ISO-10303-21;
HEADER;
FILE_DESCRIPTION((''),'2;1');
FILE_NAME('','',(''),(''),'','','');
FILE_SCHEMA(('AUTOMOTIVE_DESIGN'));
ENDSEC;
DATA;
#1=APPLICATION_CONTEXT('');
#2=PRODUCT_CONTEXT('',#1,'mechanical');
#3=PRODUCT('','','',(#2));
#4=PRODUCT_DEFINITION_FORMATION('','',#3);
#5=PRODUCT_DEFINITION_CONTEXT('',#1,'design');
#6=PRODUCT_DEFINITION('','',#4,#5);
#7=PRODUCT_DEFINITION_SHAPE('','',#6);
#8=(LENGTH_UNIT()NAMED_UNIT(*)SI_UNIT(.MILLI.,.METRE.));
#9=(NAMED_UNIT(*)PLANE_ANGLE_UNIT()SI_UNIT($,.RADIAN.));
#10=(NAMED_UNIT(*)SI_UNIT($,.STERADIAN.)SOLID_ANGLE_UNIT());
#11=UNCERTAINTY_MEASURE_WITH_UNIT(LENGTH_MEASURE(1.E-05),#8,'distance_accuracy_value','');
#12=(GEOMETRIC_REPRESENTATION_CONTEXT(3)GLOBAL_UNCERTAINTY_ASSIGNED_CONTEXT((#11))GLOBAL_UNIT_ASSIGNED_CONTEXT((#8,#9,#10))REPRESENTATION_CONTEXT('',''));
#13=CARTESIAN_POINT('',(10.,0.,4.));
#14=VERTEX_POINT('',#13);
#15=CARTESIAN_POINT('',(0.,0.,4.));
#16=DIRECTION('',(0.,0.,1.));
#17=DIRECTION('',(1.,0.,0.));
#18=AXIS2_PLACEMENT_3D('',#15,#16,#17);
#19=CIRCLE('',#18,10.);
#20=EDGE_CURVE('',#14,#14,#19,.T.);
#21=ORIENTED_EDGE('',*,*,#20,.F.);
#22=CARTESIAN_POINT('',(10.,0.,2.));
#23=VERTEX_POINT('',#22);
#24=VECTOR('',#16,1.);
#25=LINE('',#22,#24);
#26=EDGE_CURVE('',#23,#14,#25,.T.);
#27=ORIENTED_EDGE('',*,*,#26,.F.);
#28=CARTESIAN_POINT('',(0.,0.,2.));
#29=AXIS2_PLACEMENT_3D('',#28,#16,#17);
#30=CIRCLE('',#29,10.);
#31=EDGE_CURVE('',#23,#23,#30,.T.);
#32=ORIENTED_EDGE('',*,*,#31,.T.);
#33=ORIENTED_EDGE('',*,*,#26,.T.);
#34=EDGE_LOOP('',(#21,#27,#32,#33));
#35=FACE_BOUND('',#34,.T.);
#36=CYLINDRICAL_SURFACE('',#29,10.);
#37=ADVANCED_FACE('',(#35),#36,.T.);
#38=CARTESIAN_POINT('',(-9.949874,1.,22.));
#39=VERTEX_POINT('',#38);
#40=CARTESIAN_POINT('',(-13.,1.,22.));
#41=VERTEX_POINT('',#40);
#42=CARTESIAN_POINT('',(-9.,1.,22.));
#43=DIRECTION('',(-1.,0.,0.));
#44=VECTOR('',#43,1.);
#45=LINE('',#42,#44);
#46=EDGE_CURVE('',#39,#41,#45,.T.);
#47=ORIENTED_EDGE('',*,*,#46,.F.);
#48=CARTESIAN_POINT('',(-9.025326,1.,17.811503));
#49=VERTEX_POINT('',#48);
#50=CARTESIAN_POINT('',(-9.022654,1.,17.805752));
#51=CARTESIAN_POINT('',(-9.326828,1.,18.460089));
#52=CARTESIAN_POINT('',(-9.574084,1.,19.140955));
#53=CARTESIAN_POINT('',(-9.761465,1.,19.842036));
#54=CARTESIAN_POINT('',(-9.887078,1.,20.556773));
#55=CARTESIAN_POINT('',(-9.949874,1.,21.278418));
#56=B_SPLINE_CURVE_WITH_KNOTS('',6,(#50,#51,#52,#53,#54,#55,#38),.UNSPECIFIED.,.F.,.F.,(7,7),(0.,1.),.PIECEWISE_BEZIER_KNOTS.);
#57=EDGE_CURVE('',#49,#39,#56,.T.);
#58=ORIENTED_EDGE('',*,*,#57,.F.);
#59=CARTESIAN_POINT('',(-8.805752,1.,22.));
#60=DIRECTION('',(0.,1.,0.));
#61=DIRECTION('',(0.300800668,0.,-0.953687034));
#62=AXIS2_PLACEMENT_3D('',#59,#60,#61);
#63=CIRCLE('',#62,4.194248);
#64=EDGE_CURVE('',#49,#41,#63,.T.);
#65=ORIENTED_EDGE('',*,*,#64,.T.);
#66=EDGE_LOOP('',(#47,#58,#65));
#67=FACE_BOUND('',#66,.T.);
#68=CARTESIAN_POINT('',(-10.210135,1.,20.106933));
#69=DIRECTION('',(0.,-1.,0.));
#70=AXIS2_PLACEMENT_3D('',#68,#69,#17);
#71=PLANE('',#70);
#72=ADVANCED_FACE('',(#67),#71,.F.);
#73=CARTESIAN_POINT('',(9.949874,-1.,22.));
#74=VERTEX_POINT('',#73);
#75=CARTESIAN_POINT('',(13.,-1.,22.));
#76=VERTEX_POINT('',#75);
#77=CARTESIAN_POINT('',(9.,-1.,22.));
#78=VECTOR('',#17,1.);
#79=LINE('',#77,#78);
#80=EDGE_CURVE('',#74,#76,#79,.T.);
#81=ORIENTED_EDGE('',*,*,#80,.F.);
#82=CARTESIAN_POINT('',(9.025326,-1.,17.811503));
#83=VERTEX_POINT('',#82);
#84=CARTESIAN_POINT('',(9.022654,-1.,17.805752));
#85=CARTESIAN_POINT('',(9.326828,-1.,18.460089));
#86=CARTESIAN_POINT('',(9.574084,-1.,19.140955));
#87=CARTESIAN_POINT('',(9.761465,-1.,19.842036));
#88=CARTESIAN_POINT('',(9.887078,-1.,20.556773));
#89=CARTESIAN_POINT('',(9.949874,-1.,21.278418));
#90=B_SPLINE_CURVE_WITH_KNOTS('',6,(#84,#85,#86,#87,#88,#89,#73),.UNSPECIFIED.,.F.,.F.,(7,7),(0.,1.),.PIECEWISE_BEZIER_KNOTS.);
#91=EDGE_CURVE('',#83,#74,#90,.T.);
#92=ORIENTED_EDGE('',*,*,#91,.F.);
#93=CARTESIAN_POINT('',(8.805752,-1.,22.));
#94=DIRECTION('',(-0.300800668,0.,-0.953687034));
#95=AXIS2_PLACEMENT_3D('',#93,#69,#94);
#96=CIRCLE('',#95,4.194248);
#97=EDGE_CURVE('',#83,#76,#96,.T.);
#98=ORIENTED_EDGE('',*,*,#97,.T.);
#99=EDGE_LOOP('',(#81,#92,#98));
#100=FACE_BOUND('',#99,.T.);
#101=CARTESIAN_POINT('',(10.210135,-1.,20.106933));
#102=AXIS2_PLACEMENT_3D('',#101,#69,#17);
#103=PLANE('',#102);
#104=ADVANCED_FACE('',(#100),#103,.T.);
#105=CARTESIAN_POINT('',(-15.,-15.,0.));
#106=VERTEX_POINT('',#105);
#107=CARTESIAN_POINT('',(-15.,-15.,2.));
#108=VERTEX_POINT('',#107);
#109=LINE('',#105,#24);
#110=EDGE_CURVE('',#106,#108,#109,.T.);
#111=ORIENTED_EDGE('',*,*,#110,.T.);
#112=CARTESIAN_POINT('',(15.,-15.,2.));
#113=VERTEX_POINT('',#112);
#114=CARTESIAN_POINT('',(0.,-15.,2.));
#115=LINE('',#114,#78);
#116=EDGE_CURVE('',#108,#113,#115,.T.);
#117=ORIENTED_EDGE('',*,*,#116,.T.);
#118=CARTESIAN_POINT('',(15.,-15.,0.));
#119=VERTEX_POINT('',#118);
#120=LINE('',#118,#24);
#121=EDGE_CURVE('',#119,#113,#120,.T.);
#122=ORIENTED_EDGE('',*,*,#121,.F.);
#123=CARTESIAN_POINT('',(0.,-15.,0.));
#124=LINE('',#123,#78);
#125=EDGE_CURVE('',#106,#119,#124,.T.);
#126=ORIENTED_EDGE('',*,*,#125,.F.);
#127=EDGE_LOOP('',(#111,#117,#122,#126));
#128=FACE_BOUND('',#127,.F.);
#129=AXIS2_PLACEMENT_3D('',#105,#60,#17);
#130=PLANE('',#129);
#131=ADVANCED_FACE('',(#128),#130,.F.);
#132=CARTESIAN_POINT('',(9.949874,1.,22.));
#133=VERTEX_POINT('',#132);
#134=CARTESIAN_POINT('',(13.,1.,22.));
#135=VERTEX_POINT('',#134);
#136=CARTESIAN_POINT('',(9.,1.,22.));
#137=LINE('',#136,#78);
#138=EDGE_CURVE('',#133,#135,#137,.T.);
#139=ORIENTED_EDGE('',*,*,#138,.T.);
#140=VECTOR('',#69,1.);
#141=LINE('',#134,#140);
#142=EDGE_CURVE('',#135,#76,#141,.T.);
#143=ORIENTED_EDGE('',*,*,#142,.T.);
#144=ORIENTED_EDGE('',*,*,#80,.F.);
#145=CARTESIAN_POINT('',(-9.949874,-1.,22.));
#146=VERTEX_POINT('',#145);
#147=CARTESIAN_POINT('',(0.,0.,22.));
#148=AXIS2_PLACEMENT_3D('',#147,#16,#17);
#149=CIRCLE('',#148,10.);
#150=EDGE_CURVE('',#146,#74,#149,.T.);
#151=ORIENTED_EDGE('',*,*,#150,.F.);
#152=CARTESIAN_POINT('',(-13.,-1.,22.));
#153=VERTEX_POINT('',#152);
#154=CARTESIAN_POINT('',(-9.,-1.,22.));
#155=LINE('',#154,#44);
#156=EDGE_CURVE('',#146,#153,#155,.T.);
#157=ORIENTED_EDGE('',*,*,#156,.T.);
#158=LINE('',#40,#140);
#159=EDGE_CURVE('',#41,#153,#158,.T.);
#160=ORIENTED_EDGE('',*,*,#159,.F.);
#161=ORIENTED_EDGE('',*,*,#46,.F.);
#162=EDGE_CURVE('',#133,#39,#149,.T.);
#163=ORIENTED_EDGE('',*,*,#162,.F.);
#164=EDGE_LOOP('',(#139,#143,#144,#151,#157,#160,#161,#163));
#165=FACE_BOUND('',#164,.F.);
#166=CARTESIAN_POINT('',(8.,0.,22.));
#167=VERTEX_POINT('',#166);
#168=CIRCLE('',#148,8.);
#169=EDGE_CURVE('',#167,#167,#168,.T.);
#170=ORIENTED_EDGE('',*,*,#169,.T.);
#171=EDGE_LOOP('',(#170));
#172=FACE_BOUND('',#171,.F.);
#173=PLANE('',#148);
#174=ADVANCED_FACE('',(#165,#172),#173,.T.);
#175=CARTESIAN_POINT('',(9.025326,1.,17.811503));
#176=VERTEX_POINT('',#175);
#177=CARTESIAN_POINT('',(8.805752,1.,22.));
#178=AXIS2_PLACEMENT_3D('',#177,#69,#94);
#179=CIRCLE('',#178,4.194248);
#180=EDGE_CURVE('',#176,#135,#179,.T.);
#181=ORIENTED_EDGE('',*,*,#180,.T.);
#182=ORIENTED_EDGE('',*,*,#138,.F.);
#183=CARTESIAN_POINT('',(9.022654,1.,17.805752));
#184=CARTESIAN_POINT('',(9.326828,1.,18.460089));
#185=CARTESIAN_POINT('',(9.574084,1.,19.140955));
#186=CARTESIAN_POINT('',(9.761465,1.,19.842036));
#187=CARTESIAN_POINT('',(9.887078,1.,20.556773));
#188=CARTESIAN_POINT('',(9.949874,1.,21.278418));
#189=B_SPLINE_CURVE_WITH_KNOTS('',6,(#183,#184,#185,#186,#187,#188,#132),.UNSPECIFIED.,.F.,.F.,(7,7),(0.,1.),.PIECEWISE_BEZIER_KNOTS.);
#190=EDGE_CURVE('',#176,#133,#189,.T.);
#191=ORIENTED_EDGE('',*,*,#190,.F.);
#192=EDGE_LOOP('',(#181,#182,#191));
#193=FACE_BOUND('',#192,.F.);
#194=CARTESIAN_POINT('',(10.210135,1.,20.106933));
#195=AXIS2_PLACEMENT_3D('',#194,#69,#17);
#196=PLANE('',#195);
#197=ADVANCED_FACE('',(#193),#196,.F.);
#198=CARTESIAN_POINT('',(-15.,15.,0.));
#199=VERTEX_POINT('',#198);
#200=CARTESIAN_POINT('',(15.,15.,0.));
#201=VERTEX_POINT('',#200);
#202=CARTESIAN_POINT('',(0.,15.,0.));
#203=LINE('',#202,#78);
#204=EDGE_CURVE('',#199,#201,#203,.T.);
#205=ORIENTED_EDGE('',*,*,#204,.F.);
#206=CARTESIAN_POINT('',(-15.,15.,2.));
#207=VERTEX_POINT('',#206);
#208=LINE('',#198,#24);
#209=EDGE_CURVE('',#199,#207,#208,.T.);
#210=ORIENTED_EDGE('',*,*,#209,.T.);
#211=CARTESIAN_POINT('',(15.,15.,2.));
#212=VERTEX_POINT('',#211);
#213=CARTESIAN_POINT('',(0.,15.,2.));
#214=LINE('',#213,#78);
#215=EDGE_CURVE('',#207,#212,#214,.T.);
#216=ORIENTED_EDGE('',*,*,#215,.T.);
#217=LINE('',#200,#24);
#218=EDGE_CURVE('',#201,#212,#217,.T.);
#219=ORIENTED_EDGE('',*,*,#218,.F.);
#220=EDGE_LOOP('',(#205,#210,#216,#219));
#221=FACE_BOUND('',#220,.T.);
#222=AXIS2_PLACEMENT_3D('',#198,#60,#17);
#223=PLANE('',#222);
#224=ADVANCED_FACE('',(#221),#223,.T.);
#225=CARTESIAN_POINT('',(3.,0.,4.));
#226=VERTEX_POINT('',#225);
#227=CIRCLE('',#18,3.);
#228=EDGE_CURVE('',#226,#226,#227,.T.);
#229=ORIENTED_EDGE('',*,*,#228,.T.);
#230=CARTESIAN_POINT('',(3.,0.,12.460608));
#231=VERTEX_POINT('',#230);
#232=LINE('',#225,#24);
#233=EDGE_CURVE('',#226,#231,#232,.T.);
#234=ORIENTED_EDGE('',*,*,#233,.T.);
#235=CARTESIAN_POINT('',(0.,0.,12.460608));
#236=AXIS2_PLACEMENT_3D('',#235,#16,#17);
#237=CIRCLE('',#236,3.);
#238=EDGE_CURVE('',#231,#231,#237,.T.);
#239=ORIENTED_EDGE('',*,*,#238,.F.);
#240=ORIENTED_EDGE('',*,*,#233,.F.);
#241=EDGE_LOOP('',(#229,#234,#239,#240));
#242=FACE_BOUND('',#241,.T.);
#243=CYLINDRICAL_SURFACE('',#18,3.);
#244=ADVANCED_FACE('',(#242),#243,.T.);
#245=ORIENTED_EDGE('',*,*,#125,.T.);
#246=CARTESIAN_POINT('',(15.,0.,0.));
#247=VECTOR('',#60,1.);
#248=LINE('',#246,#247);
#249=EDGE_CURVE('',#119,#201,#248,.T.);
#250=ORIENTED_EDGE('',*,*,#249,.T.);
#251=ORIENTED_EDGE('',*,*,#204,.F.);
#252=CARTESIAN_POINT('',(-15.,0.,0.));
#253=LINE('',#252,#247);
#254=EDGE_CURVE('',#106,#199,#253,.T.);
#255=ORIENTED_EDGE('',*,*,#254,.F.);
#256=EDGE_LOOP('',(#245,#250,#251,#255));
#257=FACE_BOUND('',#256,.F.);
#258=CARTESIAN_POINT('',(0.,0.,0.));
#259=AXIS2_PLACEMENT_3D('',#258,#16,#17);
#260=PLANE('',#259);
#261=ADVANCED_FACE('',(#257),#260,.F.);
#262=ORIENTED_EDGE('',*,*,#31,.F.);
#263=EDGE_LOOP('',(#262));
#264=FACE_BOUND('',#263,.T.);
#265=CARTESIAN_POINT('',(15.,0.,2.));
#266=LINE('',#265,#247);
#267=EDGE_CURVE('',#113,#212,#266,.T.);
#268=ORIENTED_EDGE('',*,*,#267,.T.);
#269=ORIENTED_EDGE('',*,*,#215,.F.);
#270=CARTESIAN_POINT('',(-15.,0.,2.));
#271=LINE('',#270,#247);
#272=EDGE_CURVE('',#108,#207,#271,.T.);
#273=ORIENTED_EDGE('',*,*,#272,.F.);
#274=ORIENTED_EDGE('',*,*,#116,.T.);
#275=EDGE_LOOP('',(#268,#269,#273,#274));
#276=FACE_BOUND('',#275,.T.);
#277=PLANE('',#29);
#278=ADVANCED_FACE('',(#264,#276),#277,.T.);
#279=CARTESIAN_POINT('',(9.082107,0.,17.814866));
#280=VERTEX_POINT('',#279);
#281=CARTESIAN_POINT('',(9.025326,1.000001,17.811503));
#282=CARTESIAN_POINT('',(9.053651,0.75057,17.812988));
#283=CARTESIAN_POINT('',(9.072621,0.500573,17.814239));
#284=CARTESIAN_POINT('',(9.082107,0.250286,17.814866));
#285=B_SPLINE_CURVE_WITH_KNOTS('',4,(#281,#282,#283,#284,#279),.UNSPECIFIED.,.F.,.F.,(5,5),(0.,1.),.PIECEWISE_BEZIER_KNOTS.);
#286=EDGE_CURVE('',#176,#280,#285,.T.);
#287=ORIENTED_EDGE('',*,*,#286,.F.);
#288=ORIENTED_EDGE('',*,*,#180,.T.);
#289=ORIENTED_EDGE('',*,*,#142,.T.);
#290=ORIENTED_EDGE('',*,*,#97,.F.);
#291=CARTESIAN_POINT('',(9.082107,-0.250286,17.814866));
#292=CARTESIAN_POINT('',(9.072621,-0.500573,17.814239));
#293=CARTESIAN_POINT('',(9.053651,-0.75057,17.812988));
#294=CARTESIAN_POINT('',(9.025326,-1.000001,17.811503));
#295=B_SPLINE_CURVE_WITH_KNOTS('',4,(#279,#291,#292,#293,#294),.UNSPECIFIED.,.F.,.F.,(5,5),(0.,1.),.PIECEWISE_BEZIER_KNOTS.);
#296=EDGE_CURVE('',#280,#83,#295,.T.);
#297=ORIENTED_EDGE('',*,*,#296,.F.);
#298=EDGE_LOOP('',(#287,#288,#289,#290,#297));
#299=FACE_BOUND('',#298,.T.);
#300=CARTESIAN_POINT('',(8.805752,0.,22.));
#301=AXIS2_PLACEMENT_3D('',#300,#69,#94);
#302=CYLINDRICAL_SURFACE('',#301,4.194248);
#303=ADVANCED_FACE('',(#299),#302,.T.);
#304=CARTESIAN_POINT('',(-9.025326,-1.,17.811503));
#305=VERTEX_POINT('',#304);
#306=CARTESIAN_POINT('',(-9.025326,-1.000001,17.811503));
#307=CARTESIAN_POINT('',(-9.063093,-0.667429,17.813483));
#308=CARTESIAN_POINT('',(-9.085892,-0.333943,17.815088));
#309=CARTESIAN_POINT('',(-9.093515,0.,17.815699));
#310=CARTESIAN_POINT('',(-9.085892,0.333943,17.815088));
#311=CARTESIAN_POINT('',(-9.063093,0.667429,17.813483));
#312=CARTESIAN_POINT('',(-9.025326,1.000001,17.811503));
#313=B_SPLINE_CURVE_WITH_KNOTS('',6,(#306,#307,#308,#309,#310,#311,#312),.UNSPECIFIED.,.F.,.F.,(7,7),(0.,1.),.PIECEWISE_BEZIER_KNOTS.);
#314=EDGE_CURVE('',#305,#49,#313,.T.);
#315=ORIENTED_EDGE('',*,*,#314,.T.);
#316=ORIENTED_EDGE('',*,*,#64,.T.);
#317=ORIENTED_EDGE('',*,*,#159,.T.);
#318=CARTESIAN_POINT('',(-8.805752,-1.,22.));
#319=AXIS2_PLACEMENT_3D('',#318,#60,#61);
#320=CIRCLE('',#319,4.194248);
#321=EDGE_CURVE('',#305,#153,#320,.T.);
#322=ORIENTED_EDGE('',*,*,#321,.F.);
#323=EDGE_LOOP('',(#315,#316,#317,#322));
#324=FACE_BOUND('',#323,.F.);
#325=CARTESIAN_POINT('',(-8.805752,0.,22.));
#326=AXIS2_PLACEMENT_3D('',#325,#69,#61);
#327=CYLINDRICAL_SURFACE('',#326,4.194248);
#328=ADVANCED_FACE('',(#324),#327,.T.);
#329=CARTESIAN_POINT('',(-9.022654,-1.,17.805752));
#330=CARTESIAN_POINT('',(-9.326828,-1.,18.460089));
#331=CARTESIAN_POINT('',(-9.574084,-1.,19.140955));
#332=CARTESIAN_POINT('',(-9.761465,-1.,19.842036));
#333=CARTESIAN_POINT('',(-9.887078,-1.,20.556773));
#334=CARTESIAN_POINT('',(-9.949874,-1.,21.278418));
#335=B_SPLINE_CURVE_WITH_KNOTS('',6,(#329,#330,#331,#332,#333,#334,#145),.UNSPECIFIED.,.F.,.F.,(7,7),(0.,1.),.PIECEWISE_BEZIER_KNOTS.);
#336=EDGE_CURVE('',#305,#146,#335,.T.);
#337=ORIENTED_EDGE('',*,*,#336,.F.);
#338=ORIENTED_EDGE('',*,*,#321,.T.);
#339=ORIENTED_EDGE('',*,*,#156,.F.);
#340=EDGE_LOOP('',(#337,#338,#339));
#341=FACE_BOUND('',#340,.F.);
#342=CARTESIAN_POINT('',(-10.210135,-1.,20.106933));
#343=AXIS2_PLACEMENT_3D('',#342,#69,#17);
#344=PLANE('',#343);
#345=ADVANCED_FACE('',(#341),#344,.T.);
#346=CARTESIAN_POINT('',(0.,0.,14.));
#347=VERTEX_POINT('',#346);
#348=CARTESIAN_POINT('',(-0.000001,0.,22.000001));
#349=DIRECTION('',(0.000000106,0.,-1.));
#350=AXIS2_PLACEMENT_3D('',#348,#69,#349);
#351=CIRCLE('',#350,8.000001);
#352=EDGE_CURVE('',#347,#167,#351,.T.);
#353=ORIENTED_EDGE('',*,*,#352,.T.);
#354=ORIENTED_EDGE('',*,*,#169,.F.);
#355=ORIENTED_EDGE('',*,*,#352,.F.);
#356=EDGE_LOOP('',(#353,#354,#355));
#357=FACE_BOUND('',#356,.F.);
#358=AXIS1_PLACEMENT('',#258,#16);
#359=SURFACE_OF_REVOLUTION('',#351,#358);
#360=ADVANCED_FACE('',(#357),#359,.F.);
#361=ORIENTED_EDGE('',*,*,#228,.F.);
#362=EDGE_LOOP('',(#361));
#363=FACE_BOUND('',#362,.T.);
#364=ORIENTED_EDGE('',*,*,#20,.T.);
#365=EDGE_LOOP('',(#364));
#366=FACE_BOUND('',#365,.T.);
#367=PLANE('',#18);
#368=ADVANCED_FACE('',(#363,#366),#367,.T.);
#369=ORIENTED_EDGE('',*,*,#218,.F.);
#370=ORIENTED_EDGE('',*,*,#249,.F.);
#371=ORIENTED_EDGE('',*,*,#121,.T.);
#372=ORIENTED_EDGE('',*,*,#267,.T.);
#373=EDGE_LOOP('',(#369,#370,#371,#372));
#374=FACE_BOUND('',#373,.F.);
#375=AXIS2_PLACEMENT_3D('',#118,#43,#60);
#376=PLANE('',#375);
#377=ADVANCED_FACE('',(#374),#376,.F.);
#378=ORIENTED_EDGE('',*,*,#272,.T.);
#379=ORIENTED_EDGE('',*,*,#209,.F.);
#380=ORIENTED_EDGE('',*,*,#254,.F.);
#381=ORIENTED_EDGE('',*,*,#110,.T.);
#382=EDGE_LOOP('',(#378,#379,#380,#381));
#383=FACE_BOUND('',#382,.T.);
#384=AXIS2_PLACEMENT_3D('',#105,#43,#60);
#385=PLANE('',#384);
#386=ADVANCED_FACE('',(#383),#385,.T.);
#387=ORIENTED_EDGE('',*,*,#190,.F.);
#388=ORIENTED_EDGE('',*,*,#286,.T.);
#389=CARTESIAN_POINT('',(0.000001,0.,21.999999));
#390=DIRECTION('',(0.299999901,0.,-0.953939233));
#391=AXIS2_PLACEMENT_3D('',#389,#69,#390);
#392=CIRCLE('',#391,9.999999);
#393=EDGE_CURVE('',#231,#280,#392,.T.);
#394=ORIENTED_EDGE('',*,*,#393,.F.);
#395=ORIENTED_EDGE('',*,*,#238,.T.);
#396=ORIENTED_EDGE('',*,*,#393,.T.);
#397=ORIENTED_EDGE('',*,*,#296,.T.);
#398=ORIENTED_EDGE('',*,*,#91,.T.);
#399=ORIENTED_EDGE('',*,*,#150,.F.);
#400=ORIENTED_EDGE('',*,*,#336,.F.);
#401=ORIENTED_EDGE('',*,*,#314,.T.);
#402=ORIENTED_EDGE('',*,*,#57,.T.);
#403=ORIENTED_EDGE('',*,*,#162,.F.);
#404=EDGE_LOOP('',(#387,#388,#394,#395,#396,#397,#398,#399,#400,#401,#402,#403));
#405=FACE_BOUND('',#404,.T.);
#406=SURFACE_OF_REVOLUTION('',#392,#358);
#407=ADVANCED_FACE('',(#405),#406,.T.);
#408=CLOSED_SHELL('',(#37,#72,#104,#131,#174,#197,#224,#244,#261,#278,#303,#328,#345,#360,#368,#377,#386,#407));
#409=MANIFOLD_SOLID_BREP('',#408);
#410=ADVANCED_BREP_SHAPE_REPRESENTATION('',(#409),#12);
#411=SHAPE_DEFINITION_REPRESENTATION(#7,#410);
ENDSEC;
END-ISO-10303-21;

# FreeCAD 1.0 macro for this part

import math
import FreeCAD as App
import Part
import Sketcher
Q = App.Units.Quantity

doc = App.newDocument("Part")
body = doc.addObject("PartDesign::Body", "Body")

sketch1 = body.newObject("Sketcher::SketchObject", "Sketch")
sketch1.AttachmentSupport = (doc.getObject("XY_Plane"), [""])
sketch1.MapMode = "FlatFace"
sketch1.addGeometry([
    Part.LineSegment(App.Vector(-15, 15, 0), App.Vector(-15, -15, 0)),
    Part.LineSegment(App.Vector(-15, -15, 0), App.Vector(15, -15, 0)),
    Part.LineSegment(App.Vector(15, -15, 0), App.Vector(15, 15, 0)),
    Part.LineSegment(App.Vector(15, 15, 0), App.Vector(-15, 15, 0)),
], False)
sketch1.addConstraint([
    Sketcher.Constraint("Coincident", 0, 2, 1, 1),
    Sketcher.Constraint("Coincident", 1, 2, 2, 1),
    Sketcher.Constraint("Coincident", 2, 2, 3, 1),
    Sketcher.Constraint("Coincident", 3, 2, 0, 1),
    Sketcher.Constraint("Vertical", 0),
    Sketcher.Constraint("Horizontal", 1),
    Sketcher.Constraint("Vertical", 2),
    Sketcher.Constraint("Horizontal", 3),
    Sketcher.Constraint("Symmetric", 0, 2, 2, 2, -1, 1),
    Sketcher.Constraint("Equal", 3, 0),
    Sketcher.Constraint("DistanceX", 1, 1, 1, 2, Q("30 mm")),
])
pad1 = body.newObject("PartDesign::Pad", "Pad")
pad1.Profile = sketch1
pad1.Length = 2

sketch2 = body.newObject("Sketcher::SketchObject", "Sketch001")
sketch2.AttachmentSupport = (doc.getObject("XZ_Plane"), [""])
sketch2.MapMode = "FlatFace"
sketch2.addGeometry([
    Part.LineSegment(App.Vector(0, 2, 0), App.Vector(10, 2, 0)),
    Part.LineSegment(App.Vector(10, 2, 0), App.Vector(10, 4, 0)),
    Part.LineSegment(App.Vector(10, 4, 0), App.Vector(3, 4, 0)),
    Part.LineSegment(App.Vector(3, 4, 0), App.Vector(3, 12.460608, 0)),
    Part.ArcOfCircle(Part.Circle(App.Vector(0.000001, 21.999999, 0), App.Vector(0, 0, 1), 9.999999), math.radians(-72.542403), math.radians(0.000006)),
    Part.LineSegment(App.Vector(10, 22, 0), App.Vector(8, 22, 0)),
    Part.ArcOfCircle(Part.Circle(App.Vector(-0.000001, 22.000001, 0), App.Vector(0, 0, 1), 8.000001), math.radians(-89.999994), math.radians(-0.000006)),
    Part.LineSegment(App.Vector(0, 14, 0), App.Vector(0, 2, 0)),
], False)
sketch2.addConstraint([
    Sketcher.Constraint("Coincident", 0, 2, 1, 1),
    Sketcher.Constraint("Coincident", 1, 2, 2, 1),
    Sketcher.Constraint("Coincident", 2, 2, 3, 1),
    Sketcher.Constraint("Coincident", 3, 2, 4, 1),
    Sketcher.Constraint("Coincident", 4, 2, 5, 1),
    Sketcher.Constraint("Coincident", 5, 2, 6, 2),
    Sketcher.Constraint("Coincident", 6, 1, 7, 1),
    Sketcher.Constraint("Coincident", 7, 2, 0, 1),
    Sketcher.Constraint("Horizontal", 0),
    Sketcher.Constraint("Vertical", 1),
    Sketcher.Constraint("Horizontal", 2),
    Sketcher.Constraint("Vertical", 3),
    Sketcher.Constraint("Horizontal", 5),
    Sketcher.Constraint("Vertical", 7),
    Sketcher.Constraint("Coincident", 6, 3, 4, 3),
    Sketcher.Constraint("PointOnObject", 4, 3, -2),
    Sketcher.Constraint("PointOnObject", 6, 1, -2),
    Sketcher.Constraint("Horizontal", 6, 3, 4, 2),
    Sketcher.Constraint("Vertical", 1, 2, 4, 2),
    Sketcher.Constraint("Equal", 5, 1),
    Sketcher.Constraint("Radius", 4, Q("9.999999 mm")),
    Sketcher.Constraint("Radius", 6, Q("8.000001 mm")),
    Sketcher.Constraint("DistanceX", 2, 2, 2, 1, Q("7 mm")),
    Sketcher.Constraint("DistanceY", 7, 2, 7, 1, Q("12 mm")),
    Sketcher.Constraint("DistanceY", -1, 1, 4, 3, Q("21.999999 mm")),
])
revolution = body.newObject("PartDesign::Revolution", "Revolution")
revolution.Profile = sketch2
revolution.ReferenceAxis = (sketch2, ["V_Axis"])
revolution.Angle = 360

sketch3 = body.newObject("Sketcher::SketchObject", "Sketch002")
sketch3.AttachmentSupport = (doc.getObject("XZ_Plane"), [""])
sketch3.MapMode = "FlatFace"
sketch3.addGeometry([
    Part.ArcOfCircle(Part.Circle(App.Vector(8.805752, 22, 0), App.Vector(0, 0, 1), 4.194248), math.radians(-107.505699), math.radians(-0.000003)),
    Part.LineSegment(App.Vector(13, 22, 0), App.Vector(9, 22, 0)),
    Part.LineSegment(App.Vector(9, 22, 0), App.Vector(7.544119, 18, 0)),
], False)
sketch3.addConstraint([
    Sketcher.Constraint("Coincident", 0, 2, 1, 1),
    Sketcher.Constraint("Coincident", 1, 2, 2, 1),
    Sketcher.Constraint("Coincident", 2, 2, 0, 1),
    Sketcher.Constraint("Horizontal", 1),
    Sketcher.Constraint("DistanceX", 1, 2, 1, 1, Q("4 mm")),
    Sketcher.Constraint("Angle", 2, Q("-110.000001 deg")),
    Sketcher.Constraint("DistanceY", -1, 1, 0, 3, Q("22 mm")),
    Sketcher.Constraint("DistanceX", -1, 1, 0, 2, Q("13 mm")),
    Sketcher.Constraint("DistanceY", -1, 1, 0, 2, Q("22 mm")),
    Sketcher.Constraint("DistanceY", -1, 1, 2, 2, Q("18 mm")),
])
pad2 = body.newObject("PartDesign::Pad", "Pad001")
pad2.Profile = sketch3
pad2.Length = 2
pad2.Midplane = True
doc.recompute()

mirrored = body.newObject("PartDesign::Mirrored", "Mirrored")
mirrored.Originals = [pad2]
mirrored.MirrorPlane = (doc.getObject("YZ_Plane"), [""])
body.Tip = mirrored

doc.recompute()
